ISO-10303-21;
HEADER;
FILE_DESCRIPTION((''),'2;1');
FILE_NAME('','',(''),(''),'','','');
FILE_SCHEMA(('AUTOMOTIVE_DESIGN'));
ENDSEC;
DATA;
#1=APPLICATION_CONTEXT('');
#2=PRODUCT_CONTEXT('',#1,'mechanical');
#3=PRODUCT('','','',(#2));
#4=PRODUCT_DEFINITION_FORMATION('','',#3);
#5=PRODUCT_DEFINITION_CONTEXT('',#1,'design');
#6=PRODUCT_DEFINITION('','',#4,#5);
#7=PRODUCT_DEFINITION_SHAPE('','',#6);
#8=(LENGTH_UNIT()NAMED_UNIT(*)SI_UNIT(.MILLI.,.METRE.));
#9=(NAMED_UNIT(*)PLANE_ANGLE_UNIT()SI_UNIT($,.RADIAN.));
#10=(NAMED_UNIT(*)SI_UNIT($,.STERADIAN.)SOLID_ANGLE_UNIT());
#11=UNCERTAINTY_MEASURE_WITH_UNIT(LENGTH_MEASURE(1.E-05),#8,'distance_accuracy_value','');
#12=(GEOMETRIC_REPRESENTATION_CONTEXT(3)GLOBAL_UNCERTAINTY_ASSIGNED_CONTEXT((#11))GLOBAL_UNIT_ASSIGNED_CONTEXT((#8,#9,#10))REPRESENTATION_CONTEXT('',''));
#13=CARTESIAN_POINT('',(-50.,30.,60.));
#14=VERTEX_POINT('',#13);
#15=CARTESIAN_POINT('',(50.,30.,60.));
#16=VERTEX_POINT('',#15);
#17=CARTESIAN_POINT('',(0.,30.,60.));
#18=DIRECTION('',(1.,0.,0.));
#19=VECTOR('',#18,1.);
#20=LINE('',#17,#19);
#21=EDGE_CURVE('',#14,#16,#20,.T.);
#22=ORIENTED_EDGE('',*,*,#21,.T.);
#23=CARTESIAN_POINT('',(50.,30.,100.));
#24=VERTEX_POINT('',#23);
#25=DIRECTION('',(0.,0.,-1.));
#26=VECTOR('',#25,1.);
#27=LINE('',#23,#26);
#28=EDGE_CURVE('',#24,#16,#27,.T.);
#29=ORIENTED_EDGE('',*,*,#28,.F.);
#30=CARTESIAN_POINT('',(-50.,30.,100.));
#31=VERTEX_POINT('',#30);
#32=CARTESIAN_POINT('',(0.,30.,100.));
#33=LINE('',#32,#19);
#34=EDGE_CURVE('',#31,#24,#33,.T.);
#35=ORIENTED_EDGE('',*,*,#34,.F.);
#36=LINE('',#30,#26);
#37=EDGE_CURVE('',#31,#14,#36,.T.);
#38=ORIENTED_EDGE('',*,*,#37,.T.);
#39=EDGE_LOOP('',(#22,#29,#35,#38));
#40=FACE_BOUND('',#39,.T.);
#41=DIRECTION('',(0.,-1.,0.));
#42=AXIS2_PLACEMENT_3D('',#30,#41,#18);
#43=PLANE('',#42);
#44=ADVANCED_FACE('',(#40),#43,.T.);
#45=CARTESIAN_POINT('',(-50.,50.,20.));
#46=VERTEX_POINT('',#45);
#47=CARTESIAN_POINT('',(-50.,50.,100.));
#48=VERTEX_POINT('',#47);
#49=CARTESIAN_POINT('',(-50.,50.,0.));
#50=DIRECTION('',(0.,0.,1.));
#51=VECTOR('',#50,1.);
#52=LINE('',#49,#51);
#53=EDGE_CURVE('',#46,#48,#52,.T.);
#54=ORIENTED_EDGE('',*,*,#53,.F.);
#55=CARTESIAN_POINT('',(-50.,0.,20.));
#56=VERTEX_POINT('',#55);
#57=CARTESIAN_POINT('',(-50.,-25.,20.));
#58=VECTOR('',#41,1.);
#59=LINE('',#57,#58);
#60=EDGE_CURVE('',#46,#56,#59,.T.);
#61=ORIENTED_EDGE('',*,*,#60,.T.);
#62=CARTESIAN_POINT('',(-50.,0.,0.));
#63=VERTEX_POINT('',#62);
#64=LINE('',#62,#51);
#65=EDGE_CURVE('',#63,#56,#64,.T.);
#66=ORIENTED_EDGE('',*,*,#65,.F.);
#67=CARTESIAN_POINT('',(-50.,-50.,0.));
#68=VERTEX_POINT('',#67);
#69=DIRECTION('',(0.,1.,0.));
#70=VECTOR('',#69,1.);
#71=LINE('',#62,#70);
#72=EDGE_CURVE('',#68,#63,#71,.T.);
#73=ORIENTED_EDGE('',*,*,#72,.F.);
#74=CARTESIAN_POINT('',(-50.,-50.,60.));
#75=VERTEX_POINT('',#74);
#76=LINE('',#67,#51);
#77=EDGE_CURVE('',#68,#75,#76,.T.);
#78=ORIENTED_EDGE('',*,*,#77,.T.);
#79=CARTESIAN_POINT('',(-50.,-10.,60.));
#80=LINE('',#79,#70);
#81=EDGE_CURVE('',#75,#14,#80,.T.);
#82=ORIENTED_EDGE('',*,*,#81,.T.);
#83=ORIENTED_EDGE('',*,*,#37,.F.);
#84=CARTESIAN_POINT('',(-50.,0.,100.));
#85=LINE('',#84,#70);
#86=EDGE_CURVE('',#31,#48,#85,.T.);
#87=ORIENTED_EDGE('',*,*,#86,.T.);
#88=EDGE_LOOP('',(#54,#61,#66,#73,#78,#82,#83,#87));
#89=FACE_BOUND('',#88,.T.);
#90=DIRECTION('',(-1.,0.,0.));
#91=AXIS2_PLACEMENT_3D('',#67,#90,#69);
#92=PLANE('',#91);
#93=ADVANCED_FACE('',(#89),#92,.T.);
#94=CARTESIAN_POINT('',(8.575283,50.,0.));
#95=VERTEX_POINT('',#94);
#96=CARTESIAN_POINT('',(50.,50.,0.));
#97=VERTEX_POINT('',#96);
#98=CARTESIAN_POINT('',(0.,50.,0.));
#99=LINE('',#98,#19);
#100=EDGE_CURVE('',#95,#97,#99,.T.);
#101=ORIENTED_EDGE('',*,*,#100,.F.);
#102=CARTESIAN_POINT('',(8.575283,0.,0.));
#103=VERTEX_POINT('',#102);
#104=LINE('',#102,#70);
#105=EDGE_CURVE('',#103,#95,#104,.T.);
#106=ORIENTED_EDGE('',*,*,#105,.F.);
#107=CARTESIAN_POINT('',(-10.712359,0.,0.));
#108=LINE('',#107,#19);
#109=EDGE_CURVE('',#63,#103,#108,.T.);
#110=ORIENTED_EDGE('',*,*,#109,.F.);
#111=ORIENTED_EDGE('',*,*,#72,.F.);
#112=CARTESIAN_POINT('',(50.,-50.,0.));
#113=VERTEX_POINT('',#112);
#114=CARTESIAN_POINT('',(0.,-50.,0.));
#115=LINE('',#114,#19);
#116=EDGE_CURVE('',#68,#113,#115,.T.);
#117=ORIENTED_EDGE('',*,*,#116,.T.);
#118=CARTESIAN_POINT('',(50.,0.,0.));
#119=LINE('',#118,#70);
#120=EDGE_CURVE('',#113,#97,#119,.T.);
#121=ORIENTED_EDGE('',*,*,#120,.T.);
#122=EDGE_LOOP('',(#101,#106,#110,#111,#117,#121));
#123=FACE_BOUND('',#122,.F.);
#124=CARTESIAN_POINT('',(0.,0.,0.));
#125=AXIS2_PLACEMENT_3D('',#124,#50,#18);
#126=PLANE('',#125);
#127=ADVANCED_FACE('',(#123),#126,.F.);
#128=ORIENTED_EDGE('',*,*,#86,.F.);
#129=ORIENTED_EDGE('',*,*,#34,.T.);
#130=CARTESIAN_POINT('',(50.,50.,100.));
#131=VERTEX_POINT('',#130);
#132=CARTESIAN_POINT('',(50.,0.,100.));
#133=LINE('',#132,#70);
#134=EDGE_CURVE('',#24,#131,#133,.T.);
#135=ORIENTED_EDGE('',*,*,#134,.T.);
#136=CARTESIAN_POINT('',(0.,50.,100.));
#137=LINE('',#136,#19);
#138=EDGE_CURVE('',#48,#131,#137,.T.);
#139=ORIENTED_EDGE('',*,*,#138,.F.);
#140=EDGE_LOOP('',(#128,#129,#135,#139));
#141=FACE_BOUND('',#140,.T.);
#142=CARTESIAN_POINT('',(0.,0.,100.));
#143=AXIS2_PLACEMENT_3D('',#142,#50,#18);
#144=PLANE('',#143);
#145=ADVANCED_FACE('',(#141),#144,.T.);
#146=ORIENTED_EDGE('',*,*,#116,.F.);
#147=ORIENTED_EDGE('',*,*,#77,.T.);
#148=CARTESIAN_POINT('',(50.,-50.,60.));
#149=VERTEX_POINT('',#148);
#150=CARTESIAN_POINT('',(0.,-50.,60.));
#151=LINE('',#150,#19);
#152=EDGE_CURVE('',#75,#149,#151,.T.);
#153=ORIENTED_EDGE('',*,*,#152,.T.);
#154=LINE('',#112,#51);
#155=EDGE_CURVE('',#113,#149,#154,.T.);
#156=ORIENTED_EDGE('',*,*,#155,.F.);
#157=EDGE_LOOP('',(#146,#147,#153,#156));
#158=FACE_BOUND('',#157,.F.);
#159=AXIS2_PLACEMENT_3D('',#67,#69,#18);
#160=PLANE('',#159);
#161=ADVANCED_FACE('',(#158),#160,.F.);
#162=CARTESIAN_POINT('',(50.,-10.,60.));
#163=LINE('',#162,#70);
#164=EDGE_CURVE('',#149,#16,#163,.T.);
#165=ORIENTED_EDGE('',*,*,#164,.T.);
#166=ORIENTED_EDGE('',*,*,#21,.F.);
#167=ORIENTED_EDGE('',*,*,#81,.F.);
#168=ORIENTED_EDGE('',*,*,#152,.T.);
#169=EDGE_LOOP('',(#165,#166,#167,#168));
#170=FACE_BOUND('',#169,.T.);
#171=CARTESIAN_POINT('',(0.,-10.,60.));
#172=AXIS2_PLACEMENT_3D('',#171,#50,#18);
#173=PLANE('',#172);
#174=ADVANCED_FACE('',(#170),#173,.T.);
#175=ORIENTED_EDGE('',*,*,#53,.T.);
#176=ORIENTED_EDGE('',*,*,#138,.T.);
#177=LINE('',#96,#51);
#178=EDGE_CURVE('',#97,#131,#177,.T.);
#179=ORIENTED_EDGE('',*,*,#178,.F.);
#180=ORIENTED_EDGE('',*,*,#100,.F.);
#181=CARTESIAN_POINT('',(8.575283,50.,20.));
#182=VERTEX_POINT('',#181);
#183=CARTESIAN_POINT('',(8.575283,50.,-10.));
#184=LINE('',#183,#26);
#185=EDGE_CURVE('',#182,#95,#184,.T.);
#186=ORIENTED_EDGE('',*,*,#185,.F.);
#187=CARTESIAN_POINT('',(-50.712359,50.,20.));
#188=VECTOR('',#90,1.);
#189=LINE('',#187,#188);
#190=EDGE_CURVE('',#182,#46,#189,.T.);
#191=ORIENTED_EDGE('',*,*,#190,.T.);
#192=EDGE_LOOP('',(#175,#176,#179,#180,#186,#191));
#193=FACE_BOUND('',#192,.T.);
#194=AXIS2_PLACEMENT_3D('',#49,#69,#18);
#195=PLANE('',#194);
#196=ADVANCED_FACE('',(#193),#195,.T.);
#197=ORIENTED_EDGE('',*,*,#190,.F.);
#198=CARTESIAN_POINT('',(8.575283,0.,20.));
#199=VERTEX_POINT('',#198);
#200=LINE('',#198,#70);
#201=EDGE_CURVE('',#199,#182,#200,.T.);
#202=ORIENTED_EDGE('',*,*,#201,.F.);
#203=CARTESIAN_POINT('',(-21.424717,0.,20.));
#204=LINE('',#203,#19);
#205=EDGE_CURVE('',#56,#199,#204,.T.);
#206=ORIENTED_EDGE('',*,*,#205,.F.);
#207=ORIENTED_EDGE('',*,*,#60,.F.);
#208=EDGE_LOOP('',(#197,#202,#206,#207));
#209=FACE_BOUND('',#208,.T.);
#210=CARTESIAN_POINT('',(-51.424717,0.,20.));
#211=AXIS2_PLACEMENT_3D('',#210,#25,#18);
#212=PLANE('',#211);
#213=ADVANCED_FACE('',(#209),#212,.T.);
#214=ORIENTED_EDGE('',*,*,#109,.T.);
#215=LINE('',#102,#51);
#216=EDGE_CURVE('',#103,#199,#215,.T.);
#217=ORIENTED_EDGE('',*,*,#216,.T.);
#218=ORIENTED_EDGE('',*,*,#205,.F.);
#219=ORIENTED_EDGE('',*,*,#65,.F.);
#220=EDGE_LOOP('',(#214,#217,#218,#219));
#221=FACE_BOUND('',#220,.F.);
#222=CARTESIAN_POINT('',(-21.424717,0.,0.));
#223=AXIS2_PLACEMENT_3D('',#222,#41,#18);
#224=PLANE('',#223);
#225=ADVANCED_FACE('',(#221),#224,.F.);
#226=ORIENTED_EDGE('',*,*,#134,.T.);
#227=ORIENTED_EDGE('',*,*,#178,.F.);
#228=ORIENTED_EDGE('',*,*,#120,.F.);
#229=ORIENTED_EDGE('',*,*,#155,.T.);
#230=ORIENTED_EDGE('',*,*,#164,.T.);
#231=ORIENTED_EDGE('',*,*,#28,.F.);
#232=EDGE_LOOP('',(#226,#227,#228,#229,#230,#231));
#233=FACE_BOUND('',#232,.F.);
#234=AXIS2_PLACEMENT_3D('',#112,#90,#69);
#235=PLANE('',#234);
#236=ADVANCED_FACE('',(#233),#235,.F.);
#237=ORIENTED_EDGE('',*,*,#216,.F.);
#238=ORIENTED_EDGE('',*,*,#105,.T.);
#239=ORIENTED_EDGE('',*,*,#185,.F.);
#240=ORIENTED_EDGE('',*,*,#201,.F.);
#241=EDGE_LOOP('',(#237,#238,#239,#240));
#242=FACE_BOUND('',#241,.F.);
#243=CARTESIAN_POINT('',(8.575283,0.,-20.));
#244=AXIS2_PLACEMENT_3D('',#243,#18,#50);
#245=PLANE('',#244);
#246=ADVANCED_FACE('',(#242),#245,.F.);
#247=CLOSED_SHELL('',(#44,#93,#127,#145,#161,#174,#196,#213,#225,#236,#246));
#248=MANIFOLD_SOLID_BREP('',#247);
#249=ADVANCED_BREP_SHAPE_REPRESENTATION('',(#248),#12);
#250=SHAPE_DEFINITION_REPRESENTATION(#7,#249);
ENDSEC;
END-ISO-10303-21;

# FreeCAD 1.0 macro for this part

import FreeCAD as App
import Part
import Sketcher
from FreeCAD import Vector
Q = App.Units.Quantity


def add_polygon(sketch, points):
    """Adds a closed chain of lines whose ends are joined by coincident constraints."""
    first, n = sketch.GeometryCount, len(points)
    for a, b in zip(points, points[1:] + points[:1]):
        sketch.addGeometry(Part.LineSegment(App.Vector(*a, 0), App.Vector(*b, 0)), False)
    for i in range(n):
        sketch.addConstraint(Sketcher.Constraint("Coincident", first + i, 2, first + (i + 1) % n, 1))

doc = App.newDocument("Part")
body = doc.addObject("PartDesign::Body", "Body")

sketch1 = body.newObject("Sketcher::SketchObject", "Sketch")
sketch1.AttachmentSupport = (doc.getObject("XY_Plane"), [""])
sketch1.MapMode = "FlatFace"
add_polygon(sketch1, [(-50, 50), (-50, -50), (50, -50), (50, 50)])
sketch1.addConstraint([
    Sketcher.Constraint("Vertical", 0),
    Sketcher.Constraint("Horizontal", 1),
    Sketcher.Constraint("Vertical", 2),
    Sketcher.Constraint("Horizontal", 3),
    Sketcher.Constraint("Symmetric", 0, 2, 2, 2, -1, 1),
    Sketcher.Constraint("Equal", 3, 0),
    Sketcher.Constraint("DistanceX", 1, 1, 1, 2, Q("100 mm")),
])
pad1 = body.newObject("PartDesign::Pad", "Pad")
pad1.Profile = sketch1
pad1.Length = 100

sketch2 = body.newObject("Sketcher::SketchObject", "Sketch001")
sketch2.AttachmentSupport = (doc.getObject("XY_Plane"), [""])
sketch2.MapMode = "FlatFace"
sketch2.AttachmentOffset = App.Placement(Vector(0, 0, 100), App.Rotation())
add_polygon(sketch2, [(-50, 30), (-50, -50), (50, -50), (50, 30)])
sketch2.addConstraint([
    Sketcher.Constraint("Vertical", 0),
    Sketcher.Constraint("Horizontal", 1),
    Sketcher.Constraint("Vertical", 2),
    Sketcher.Constraint("Horizontal", 3),
    Sketcher.Constraint("DistanceX", 1, 1, 1, 2, Q("100 mm")),
    Sketcher.Constraint("DistanceY", 0, 2, 0, 1, Q("80 mm")),
    Sketcher.Constraint("DistanceX", 0, 2, -1, 1, Q("50 mm")),
    Sketcher.Constraint("DistanceY", 0, 2, -1, 1, Q("50 mm")),
])
pocket1 = body.newObject("PartDesign::Pocket", "Pocket")
pocket1.Profile = sketch2
pocket1.Length = 40

sketch3 = body.newObject("Sketcher::SketchObject", "Sketch002")
sketch3.AttachmentSupport = (doc.getObject("XZ_Plane"), [""])
sketch3.MapMode = "FlatFace"
add_polygon(sketch3, [(-51.424717, 20), (-51.424717, -20), (8.575283, -20), (8.575283, 20)])
sketch3.addConstraint([
    Sketcher.Constraint("Vertical", 0),
    Sketcher.Constraint("Horizontal", 1),
    Sketcher.Constraint("Vertical", 2),
    Sketcher.Constraint("Horizontal", 3),
    Sketcher.Constraint("DistanceX", 1, 1, 1, 2, Q("60 mm")),
    Sketcher.Constraint("DistanceY", 0, 2, 0, 1, Q("40 mm")),
    Sketcher.Constraint("DistanceY", 0, 2, -1, 1, Q("20 mm")),
    Sketcher.Constraint("DistanceX", 0, 2, -1, 1, Q("51.424717 mm")),
])
pocket2 = body.newObject("PartDesign::Pocket", "Pocket001")
pocket2.Profile = sketch3
pocket2.Type = "ThroughAll"

doc.recompute()
